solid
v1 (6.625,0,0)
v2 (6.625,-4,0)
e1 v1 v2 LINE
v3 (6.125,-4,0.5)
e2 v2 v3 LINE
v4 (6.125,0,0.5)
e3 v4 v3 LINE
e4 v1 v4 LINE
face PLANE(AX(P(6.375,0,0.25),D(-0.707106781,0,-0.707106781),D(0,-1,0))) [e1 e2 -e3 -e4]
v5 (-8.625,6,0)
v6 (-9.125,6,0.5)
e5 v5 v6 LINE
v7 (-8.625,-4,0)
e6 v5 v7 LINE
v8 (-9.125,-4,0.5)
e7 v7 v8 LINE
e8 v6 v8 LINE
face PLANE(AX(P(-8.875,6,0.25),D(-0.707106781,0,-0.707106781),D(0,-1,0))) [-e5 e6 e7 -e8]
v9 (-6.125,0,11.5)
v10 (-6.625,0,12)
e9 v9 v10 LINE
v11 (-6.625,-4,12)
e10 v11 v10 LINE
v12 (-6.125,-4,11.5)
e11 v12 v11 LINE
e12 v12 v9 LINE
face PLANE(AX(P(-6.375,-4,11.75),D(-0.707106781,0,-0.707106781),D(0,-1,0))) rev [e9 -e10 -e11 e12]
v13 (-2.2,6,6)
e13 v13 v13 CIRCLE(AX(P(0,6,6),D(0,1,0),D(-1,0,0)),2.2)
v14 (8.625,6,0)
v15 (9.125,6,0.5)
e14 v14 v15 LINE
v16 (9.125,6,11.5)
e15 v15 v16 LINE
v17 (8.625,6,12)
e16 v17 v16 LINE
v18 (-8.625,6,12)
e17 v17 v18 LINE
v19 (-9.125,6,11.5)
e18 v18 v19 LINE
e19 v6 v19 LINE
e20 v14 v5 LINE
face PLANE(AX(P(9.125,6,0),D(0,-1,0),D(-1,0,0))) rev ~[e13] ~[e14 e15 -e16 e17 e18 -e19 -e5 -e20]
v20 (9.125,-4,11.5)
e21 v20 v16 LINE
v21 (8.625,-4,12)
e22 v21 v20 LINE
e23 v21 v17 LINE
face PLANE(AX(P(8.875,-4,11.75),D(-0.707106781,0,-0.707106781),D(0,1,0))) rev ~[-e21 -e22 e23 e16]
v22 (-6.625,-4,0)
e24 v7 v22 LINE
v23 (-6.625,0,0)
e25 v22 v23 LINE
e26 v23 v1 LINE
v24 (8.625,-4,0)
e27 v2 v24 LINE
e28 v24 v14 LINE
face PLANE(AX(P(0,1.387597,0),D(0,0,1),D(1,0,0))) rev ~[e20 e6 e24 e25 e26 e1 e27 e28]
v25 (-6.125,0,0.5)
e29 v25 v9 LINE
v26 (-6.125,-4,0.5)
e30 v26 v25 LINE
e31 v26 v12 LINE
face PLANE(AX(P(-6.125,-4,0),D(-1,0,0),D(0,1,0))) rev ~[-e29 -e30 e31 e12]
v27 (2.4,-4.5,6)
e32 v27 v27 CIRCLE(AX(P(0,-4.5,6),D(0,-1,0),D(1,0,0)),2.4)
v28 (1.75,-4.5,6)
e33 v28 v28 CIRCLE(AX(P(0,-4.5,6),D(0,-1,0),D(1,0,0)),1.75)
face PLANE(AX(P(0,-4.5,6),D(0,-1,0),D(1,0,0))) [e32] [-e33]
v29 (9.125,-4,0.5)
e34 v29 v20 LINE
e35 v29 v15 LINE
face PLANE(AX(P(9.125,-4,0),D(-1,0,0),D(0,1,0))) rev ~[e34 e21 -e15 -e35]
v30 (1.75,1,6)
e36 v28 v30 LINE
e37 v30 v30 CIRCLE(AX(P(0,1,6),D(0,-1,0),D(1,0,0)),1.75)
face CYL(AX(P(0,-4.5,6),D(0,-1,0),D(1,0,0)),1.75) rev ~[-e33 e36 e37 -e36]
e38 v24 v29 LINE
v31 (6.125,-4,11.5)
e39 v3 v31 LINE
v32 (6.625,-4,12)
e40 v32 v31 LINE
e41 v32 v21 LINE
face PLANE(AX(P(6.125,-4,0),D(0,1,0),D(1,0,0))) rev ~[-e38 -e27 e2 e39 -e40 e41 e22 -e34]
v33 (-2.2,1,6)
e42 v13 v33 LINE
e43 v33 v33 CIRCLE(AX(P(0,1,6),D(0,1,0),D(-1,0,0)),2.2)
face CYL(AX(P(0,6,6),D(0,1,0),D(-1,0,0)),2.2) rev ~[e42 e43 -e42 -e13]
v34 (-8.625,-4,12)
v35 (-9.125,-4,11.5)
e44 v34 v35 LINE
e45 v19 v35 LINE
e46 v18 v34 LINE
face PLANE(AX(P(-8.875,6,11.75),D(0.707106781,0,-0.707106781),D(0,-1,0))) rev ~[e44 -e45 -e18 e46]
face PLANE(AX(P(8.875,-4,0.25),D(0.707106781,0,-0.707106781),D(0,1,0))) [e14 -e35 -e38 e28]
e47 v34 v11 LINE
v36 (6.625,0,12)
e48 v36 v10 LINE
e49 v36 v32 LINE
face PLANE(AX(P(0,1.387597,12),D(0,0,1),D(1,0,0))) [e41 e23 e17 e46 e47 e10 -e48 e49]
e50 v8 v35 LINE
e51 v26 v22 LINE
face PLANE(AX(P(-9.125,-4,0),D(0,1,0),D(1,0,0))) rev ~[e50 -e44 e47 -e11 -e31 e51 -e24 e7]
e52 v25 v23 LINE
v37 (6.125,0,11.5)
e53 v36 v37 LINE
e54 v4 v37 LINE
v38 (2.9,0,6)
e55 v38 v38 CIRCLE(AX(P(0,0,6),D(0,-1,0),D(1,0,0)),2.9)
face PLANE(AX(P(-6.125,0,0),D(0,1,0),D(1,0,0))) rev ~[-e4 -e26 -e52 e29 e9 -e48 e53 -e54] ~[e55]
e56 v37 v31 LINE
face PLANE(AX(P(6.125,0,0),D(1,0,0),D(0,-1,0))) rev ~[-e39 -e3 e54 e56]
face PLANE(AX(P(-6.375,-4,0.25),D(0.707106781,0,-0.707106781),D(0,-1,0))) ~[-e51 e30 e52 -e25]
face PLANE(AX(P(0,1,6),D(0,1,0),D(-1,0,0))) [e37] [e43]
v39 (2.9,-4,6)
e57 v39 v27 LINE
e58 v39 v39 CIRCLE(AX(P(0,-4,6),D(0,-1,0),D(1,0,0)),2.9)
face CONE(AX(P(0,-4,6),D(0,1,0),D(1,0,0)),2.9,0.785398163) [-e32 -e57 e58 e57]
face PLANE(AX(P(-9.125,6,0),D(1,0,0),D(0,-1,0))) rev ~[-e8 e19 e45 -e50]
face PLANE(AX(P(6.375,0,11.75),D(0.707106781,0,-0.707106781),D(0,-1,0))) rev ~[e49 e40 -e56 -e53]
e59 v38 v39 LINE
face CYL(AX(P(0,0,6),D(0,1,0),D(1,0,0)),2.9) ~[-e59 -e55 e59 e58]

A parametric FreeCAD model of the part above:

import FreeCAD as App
import Part
import Sketcher

V = App.Vector


def edges_at(feature, points):
    """Names of the edges that pass closest to the given points."""
    edges = feature.Shape.Edges
    near = lambda p: min(range(len(edges)), key=lambda i: edges[i].distToShape(Part.Vertex(*p))[0])
    return sorted({f"Edge{near(p) + 1}" for p in points})


def add_polygon(sketch, points):
    """Adds a closed chain of lines whose ends are joined by coincident constraints."""
    first, n = sketch.GeometryCount, len(points)
    for a, b in zip(points, points[1:] + points[:1]):
        sketch.addGeometry(Part.LineSegment(App.Vector(*a, 0), App.Vector(*b, 0)), False)
    for i in range(n):
        sketch.addConstraint(Sketcher.Constraint("Coincident", first + i, 2, first + (i + 1) % n, 1))

doc = App.newDocument("Part")
body = doc.addObject("PartDesign::Body", "Body")

# Sketch on XY plane
sketch1 = doc.addObject("Sketcher::SketchObject", "Sketch")
body.addObject(sketch1)
sketch1.AttachmentSupport = (doc.XY_Plane, [""])
sketch1.MapMode = "FlatFace"
add_polygon(sketch1, [(-9.125, -4), (-6.125, -4), (-6.125, 0), (6.125, 0), (6.125, -4), (9.125, -4), (9.125, 6), (-9.125, 6)])  # lines 0-7
sketch1.addConstraint([
    Sketcher.Constraint("Horizontal", 0),
    Sketcher.Constraint("Vertical", 1),
    Sketcher.Constraint("Horizontal", 2),
    Sketcher.Constraint("Vertical", 3),
    Sketcher.Constraint("Horizontal", 4),
    Sketcher.Constraint("Vertical", 5),
    Sketcher.Constraint("Horizontal", 6),
    Sketcher.Constraint("Vertical", 7),
    Sketcher.Constraint("Symmetric", 1, 2, 2, 2, -1, 1),
    Sketcher.Constraint("Symmetric", 4, 2, 7, 2, -2),
    Sketcher.Constraint("DistanceX", 0, 1, 0, 2, 3.0),
    Sketcher.Constraint("DistanceY", 1, 1, 1, 2, 4.0),
    Sketcher.Constraint("DistanceY", 5, 1, 5, 2, 10.0),
    Sketcher.Constraint("DistanceX", 2, 1, 2, 2, 12.25),
])
pad1 = doc.addObject("PartDesign::Pad", "Pad")
body.addObject(pad1)
pad1.Profile = sketch1
pad1.Length = 12

# Sketch on XZ plane
sketch2 = doc.addObject("Sketcher::SketchObject", "Sketch001")
body.addObject(sketch2)
sketch2.AttachmentSupport = (doc.XZ_Plane, [""])
sketch2.MapMode = "FlatFace"
sketch2.addGeometry(Part.Circle(V(0, 6, 0), V(0, 0, 1), 2.9), False)
sketch2.addConstraint([
    Sketcher.Constraint("PointOnObject", 0, 3, -2),
    Sketcher.Constraint("Diameter", 0, 5.8),
    Sketcher.Constraint("DistanceY", -1, 1, 0, 3, 6.0),
])
pad2 = doc.addObject("PartDesign::Pad", "Pad001")
body.addObject(pad2)
pad2.Profile = sketch2
pad2.Length = 4.5

# Sketch on XZ plane
sketch3 = doc.addObject("Sketcher::SketchObject", "Sketch002")
body.addObject(sketch3)
sketch3.AttachmentSupport = (doc.XZ_Plane, [""])
sketch3.MapMode = "FlatFace"
sketch3.AttachmentOffset = App.Placement(V(0, 0, 4.5), App.Rotation())
sketch3.addGeometry(Part.Circle(V(0, 6, 0), V(0, 0, 1), 1.75), False)
sketch3.addConstraint([
    Sketcher.Constraint("PointOnObject", 0, 3, -2),
    Sketcher.Constraint("Diameter", 0, 3.5),
    Sketcher.Constraint("DistanceY", -1, 1, 0, 3, 6.0),
])
pocket1 = doc.addObject("PartDesign::Pocket", "Pocket")
body.addObject(pocket1)
pocket1.Profile = sketch3
pocket1.Type = "ThroughAll"

# Sketch on XZ plane
sketch4 = doc.addObject("Sketcher::SketchObject", "Sketch003")
body.addObject(sketch4)
sketch4.AttachmentSupport = (doc.XZ_Plane, [""])
sketch4.MapMode = "FlatFace"
sketch4.AttachmentOffset = App.Placement(V(0, 0, -6), App.Rotation())
sketch4.addGeometry(Part.Circle(V(0, 6, 0), V(0, 0, 1), 2.2), False)
sketch4.addConstraint([
    Sketcher.Constraint("PointOnObject", 0, 3, -2),
    Sketcher.Constraint("Diameter", 0, 4.4),
    Sketcher.Constraint("DistanceY", -1, 1, 0, 3, 6.0),
])
pocket2 = doc.addObject("PartDesign::Pocket", "Pocket001")
body.addObject(pocket2)
pocket2.Profile = sketch4
pocket2.Length = 5
pocket2.Reversed = True
doc.recompute()

chamfer = doc.addObject("PartDesign::Chamfer", "Chamfer")
body.addObject(chamfer)
chamfer.Base = (pocket2, edges_at(pocket2, [(-2.9, -4.5, 6)]))
chamfer.Size = 0.5
doc.recompute()

chamfer2 = doc.addObject("PartDesign::Chamfer", "Chamfer001")
body.addObject(chamfer2)
chamfer2.Base = (chamfer, edges_at(chamfer, [
    (-6.125, -2, 0),
    (-6.125, -2, 12),
    (6.125, -2, 0),
    (9.125, 1, 0),
    (9.125, 1, 12),
    (6.125, -2, 12),
    (-9.125, 1, 12),
    (-9.125, 1, 0),
]))
chamfer2.Size = 0.5

doc.recompute()
